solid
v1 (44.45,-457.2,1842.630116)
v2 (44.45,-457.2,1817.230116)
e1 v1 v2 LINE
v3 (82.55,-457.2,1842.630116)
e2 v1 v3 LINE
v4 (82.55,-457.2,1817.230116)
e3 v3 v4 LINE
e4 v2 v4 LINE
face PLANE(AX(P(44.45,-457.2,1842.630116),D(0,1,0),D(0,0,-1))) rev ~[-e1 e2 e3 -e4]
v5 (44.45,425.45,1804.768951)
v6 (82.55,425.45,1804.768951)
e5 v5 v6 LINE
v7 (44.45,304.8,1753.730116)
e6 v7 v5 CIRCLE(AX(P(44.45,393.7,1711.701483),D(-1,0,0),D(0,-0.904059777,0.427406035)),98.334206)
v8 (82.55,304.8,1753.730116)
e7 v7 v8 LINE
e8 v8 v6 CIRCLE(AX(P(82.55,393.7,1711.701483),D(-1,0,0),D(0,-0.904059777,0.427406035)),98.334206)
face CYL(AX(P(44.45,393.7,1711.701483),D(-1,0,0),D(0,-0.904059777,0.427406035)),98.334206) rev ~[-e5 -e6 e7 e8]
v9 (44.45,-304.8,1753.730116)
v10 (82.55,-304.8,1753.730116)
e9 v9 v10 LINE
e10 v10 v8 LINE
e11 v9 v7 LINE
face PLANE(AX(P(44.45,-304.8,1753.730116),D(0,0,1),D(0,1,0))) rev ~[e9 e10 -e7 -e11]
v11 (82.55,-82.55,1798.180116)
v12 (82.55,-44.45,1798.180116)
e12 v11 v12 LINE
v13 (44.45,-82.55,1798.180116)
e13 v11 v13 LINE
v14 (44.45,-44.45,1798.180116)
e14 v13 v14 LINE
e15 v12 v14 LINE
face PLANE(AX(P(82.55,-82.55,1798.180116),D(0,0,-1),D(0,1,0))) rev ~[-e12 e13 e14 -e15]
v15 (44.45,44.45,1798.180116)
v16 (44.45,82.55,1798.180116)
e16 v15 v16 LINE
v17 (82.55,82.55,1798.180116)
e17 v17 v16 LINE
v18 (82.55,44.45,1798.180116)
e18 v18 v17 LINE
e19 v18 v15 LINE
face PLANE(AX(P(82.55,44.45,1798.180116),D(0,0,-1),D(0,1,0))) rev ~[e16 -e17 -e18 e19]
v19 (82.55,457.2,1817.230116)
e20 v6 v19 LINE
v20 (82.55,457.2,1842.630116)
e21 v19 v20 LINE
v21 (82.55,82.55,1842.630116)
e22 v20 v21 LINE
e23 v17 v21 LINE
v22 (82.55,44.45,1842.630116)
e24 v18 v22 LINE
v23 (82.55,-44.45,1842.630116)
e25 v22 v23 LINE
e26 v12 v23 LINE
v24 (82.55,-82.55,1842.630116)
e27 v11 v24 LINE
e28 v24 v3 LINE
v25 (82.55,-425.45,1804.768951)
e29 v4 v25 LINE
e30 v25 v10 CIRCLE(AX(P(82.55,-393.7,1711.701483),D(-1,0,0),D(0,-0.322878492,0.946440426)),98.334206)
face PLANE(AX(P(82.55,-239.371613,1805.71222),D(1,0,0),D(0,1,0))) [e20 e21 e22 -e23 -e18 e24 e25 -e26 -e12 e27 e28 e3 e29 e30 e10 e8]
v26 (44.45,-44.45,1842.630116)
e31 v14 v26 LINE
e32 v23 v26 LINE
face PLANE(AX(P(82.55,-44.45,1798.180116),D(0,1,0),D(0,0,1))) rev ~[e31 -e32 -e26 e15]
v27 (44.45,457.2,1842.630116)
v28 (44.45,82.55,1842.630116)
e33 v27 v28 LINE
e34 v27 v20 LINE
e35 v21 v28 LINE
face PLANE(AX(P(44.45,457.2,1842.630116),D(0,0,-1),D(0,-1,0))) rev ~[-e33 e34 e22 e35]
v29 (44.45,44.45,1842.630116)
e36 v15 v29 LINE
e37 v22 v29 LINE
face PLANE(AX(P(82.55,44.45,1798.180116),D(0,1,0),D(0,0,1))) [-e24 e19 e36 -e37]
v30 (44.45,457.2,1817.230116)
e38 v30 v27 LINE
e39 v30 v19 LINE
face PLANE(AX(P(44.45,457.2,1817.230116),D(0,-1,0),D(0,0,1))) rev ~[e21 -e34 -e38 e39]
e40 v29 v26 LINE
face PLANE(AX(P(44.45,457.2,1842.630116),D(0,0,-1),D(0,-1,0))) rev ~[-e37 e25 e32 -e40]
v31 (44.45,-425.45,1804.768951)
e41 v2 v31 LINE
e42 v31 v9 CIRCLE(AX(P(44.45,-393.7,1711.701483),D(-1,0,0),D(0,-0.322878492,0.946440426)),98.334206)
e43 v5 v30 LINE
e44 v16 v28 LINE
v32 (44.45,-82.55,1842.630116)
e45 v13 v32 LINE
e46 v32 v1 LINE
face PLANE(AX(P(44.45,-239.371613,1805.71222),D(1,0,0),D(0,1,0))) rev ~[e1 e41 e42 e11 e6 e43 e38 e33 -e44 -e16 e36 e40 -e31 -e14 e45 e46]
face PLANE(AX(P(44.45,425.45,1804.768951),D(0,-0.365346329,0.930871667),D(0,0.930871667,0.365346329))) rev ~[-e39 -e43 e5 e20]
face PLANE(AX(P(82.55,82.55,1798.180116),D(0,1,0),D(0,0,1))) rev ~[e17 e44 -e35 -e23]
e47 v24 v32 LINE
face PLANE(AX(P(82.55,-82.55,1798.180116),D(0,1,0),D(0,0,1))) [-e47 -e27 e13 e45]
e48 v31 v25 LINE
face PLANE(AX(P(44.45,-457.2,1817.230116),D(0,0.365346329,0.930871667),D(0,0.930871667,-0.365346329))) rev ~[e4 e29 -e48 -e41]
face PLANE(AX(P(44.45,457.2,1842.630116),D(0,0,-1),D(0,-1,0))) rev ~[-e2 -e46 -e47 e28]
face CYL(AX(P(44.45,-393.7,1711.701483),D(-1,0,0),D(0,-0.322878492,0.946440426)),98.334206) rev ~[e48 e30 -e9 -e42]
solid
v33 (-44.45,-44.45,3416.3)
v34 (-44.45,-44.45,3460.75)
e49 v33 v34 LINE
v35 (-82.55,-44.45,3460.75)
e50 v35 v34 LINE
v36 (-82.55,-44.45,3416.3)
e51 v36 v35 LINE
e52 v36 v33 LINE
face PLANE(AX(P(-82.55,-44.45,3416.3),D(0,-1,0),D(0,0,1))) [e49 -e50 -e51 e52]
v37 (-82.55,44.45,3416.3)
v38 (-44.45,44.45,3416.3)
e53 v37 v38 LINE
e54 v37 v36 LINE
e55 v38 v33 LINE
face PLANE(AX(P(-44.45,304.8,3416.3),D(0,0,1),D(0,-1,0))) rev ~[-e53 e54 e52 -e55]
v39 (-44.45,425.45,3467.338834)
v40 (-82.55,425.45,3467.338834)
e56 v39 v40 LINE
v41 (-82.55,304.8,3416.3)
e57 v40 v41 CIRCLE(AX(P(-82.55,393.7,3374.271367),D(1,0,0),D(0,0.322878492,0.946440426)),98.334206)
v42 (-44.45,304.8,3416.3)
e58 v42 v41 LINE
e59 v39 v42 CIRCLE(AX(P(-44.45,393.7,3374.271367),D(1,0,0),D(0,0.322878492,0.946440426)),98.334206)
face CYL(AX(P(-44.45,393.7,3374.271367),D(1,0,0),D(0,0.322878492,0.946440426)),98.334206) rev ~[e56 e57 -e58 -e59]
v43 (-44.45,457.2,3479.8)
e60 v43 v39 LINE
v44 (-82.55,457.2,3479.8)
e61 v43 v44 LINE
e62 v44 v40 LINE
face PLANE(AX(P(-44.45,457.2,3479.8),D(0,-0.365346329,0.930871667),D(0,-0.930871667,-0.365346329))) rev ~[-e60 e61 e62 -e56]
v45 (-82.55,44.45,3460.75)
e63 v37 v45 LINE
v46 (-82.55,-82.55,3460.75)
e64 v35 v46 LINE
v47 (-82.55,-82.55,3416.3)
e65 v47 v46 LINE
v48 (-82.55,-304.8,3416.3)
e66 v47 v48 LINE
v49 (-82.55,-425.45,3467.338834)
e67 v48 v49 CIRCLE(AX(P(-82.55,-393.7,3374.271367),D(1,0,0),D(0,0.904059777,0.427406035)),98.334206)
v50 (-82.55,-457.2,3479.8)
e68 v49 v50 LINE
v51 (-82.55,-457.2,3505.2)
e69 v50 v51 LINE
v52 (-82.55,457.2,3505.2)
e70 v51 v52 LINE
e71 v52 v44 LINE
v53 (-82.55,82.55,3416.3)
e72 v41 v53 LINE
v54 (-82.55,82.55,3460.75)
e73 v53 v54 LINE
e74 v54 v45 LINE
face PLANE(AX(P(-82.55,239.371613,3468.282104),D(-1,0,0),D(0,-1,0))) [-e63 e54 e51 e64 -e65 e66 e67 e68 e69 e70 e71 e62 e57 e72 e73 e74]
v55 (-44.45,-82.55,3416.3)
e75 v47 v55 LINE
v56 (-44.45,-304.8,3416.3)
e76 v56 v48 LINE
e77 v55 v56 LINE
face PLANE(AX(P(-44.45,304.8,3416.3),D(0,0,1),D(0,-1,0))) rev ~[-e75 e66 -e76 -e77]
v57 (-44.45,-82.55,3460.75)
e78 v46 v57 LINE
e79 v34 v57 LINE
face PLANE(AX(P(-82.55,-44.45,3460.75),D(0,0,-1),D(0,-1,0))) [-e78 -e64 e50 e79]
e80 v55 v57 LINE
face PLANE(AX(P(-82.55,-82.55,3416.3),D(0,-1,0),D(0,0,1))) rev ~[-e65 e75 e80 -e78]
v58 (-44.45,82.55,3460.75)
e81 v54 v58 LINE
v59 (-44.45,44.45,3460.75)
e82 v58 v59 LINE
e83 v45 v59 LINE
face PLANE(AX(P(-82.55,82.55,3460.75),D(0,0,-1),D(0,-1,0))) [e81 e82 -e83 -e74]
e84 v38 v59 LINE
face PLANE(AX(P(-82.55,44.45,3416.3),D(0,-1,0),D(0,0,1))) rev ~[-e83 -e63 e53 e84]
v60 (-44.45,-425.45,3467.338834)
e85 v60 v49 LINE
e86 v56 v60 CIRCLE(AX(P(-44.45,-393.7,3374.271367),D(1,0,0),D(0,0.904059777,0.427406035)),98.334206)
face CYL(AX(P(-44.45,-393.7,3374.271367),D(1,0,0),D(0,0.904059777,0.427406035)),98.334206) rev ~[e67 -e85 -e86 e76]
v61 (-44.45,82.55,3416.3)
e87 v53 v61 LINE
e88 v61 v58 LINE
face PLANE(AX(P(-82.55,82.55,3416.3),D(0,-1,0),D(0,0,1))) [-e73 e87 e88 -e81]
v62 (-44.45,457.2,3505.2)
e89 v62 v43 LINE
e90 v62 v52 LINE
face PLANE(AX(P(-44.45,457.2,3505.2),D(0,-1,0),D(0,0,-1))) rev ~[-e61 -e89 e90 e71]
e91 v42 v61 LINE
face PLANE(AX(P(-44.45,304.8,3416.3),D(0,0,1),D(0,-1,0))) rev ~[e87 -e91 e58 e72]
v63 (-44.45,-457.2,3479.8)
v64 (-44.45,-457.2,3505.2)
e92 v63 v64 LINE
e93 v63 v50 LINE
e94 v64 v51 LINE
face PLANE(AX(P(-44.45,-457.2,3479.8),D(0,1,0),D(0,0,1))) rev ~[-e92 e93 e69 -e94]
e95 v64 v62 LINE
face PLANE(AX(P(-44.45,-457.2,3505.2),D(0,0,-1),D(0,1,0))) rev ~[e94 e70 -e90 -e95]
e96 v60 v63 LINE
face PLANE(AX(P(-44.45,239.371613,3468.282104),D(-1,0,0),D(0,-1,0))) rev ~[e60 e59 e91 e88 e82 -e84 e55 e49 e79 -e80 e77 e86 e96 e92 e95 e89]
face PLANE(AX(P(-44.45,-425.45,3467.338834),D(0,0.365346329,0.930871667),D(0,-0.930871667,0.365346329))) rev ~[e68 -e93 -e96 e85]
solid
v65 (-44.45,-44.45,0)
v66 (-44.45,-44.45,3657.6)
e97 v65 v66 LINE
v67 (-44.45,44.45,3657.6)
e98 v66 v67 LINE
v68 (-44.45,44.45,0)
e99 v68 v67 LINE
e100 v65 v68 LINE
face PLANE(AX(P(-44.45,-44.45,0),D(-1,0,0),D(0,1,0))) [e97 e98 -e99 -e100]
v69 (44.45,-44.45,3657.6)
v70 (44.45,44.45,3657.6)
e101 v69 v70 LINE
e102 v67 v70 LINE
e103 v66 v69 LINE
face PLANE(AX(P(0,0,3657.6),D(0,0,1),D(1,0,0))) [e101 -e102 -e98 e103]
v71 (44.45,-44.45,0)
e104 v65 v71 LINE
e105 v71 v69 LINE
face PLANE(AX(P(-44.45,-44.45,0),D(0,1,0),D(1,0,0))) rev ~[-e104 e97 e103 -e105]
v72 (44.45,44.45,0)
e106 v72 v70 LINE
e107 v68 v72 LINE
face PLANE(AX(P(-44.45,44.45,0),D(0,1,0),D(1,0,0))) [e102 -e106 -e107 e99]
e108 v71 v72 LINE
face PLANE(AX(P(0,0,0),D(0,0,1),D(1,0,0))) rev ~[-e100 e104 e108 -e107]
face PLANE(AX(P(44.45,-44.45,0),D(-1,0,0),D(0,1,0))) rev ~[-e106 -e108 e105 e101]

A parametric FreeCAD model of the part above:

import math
import FreeCAD as App
import Part
import Sketcher
Q = App.Units.Quantity


def add_polygon(sketch, points):
    """Adds a closed chain of lines whose ends are joined by coincident constraints."""
    first, n = sketch.GeometryCount, len(points)
    for a, b in zip(points, points[1:] + points[:1]):
        sketch.addGeometry(Part.LineSegment(App.Vector(*a, 0), App.Vector(*b, 0)), False)
    for i in range(n):
        sketch.addConstraint(Sketcher.Constraint("Coincident", first + i, 2, first + (i + 1) % n, 1))

doc = App.newDocument("Part")
body = doc.addObject("PartDesign::Body", "Body")

# Sketch on XY plane
sketch1 = body.newObject("Sketcher::SketchObject", "Sketch")
sketch1.AttachmentSupport = (doc.getObject("XY_Plane"), [""])
sketch1.MapMode = "FlatFace"
add_polygon(sketch1, [(-44, 44), (-44, -44), (44, -44), (44, 44)])  # lines 0-3
sketch1.addConstraint([
    Sketcher.Constraint("Vertical", 0),
    Sketcher.Constraint("Horizontal", 1),
    Sketcher.Constraint("Vertical", 2),
    Sketcher.Constraint("Horizontal", 3),
    Sketcher.Constraint("Symmetric", 0, 2, 2, 2, -1, 1),
    Sketcher.Constraint("Equal", 3, 0),
    Sketcher.Constraint("DistanceX", 1, 1, 1, 2, Q("3.5 in")),
])
pad1 = body.newObject("PartDesign::Pad", "Pad")
pad1.Profile = sketch1
pad1.Length = Q("144 in")
body2 = doc.addObject("PartDesign::Body", "Body001")

# Sketch on YZ plane
sketch2 = body2.newObject("Sketcher::SketchObject", "Sketch001")
sketch2.AttachmentSupport = (doc.getObject("YZ_Plane001"), [""])
sketch2.MapMode = "FlatFace"
sketch2.AttachmentOffset = App.Placement(App.Vector(0, 0, -1.75 * 25.4), App.Rotation())
sketch2.addGeometry([
    Part.LineSegment(App.Vector(457, 3505, 0), App.Vector(457, 3480, 0)),  # 0
    Part.LineSegment(App.Vector(457, 3480, 0), App.Vector(425, 3467, 0)),  # 1
    Part.ArcOfCircle(Part.Circle(App.Vector(394, 3374, 0), App.Vector(0, 0, 1), 98), math.radians(71), math.radians(155)),  # 2
    Part.LineSegment(App.Vector(305, 3416, 0), App.Vector(-305, 3416, 0)),  # 3
    Part.ArcOfCircle(Part.Circle(App.Vector(-394, 3374, 0), App.Vector(0, 0, 1), 98), math.radians(25), math.radians(109)),  # 4
    Part.LineSegment(App.Vector(-425, 3467, 0), App.Vector(-457, 3480, 0)),  # 5
    Part.LineSegment(App.Vector(-457, 3480, 0), App.Vector(-457, 3505, 0)),  # 6
    Part.LineSegment(App.Vector(-457, 3505, 0), App.Vector(457, 3505, 0)),  # 7
], False)
sketch2.addConstraint([
    Sketcher.Constraint("Coincident", 0, 2, 1, 1),
    Sketcher.Constraint("Coincident", 1, 2, 2, 1),
    Sketcher.Constraint("Coincident", 2, 2, 3, 1),
    Sketcher.Constraint("Coincident", 3, 2, 4, 1),
    Sketcher.Constraint("Coincident", 4, 2, 5, 1),
    Sketcher.Constraint("Coincident", 5, 2, 6, 1),
    Sketcher.Constraint("Coincident", 6, 2, 7, 1),
    Sketcher.Constraint("Coincident", 7, 2, 0, 1),
    Sketcher.Constraint("Vertical", 0),
    Sketcher.Constraint("Horizontal", 3),
    Sketcher.Constraint("Vertical", 6),
    Sketcher.Constraint("Horizontal", 7),
    Sketcher.Constraint("Equal", 2, 4),
    Sketcher.Constraint("Symmetric", 2, 3, 4, 3, -2),
    Sketcher.Constraint("Symmetric", 0, 2, 5, 2, -2),
    Sketcher.Constraint("Horizontal", 1, 2, 4, 2),
    Sketcher.Constraint("DistanceX", 3, 2, 3, 1, Q("24 in")),
    Sketcher.Constraint("DistanceX", 7, 1, 7, 2, Q("36 in")),
    Sketcher.Constraint("DistanceY", 0, 2, 0, 1, Q("1 in")),
    Sketcher.Constraint("DistanceY", -1, 1, 0, 2, Q("137 in")),
    Sketcher.Constraint("DistanceX", 4, 3, 2, 3, Q("31 in")),
    Sketcher.Constraint("DistanceY", -1, 1, 2, 2, Q("134.5 in")),
    Sketcher.Constraint("DistanceX", 4, 2, 1, 2, Q("33.5 in")),
    Sketcher.Constraint("Radius", 2, Q("98.334206 mm")),
])
pad2 = body2.newObject("PartDesign::Pad", "Pad001")
pad2.Profile = sketch2
pad2.Length = Q("1.5 in")
pad2.Reversed = True

# Sketch on YZ plane
sketch3 = body2.newObject("Sketcher::SketchObject", "Sketch002")
sketch3.AttachmentSupport = (doc.getObject("YZ_Plane001"), [""])
sketch3.MapMode = "FlatFace"
sketch3.AttachmentOffset = App.Placement(App.Vector(0, 0, -3.25 * 25.4), App.Rotation())
add_polygon(sketch3, [(-44, 3461), (-44, 3416), (-83, 3416), (-83, 3461)])  # lines 0-3
sketch3.addConstraint([
    Sketcher.Constraint("Vertical", 0),
    Sketcher.Constraint("Horizontal", 1),
    Sketcher.Constraint("Vertical", 2),
    Sketcher.Constraint("Horizontal", 3),
    Sketcher.Constraint("DistanceX", 1, 2, 1, 1, Q("1.5 in")),
    Sketcher.Constraint("DistanceY", 0, 2, 0, 1, Q("1.75 in")),
    Sketcher.Constraint("DistanceY", -1, 1, 0, 2, Q("134.5 in")),
    Sketcher.Constraint("DistanceX", 0, 2, -1, 1, Q("1.75 in")),
])
pocket1 = body2.newObject("PartDesign::Pocket", "Pocket")
pocket1.Profile = sketch3
pocket1.Length = Q("10 in")
pocket1.Reversed = True

# Sketch on YZ plane
sketch4 = body2.newObject("Sketcher::SketchObject", "Sketch003")
sketch4.AttachmentSupport = (doc.getObject("YZ_Plane001"), [""])
sketch4.MapMode = "FlatFace"
sketch4.AttachmentOffset = App.Placement(App.Vector(0, 0, -3.25 * 25.4), App.Rotation())
add_polygon(sketch4, [(83, 3461), (83, 3416), (44, 3416), (44, 3461)])  # lines 0-3
sketch4.addConstraint([
    Sketcher.Constraint("Vertical", 0),
    Sketcher.Constraint("Horizontal", 1),
    Sketcher.Constraint("Vertical", 2),
    Sketcher.Constraint("Horizontal", 3),
    Sketcher.Constraint("DistanceX", 1, 2, 1, 1, Q("1.5 in")),
    Sketcher.Constraint("DistanceY", 0, 2, 0, 1, Q("1.75 in")),
    Sketcher.Constraint("DistanceY", -1, 1, 0, 2, Q("134.5 in")),
    Sketcher.Constraint("DistanceX", -1, 1, 0, 2, Q("3.25 in")),
])
pocket2 = body2.newObject("PartDesign::Pocket", "Pocket001")
pocket2.Profile = sketch4
pocket2.Length = Q("10 in")
pocket2.Reversed = True
body3 = doc.addObject("PartDesign::Body", "Body002")

# Sketch on YZ plane
sketch5 = body3.newObject("Sketcher::SketchObject", "Sketch004")
sketch5.AttachmentSupport = (doc.getObject("YZ_Plane002"), [""])
sketch5.MapMode = "FlatFace"
sketch5.AttachmentOffset = App.Placement(App.Vector(0, 0, 1.75 * 25.4), App.Rotation())
sketch5.addGeometry([
    Part.LineSegment(App.Vector(-457, 1843, 0), App.Vector(-457, 1817, 0)),  # 0
    Part.LineSegment(App.Vector(-457, 1817, 0), App.Vector(-425, 1805, 0)),  # 1
    Part.ArcOfCircle(Part.Circle(App.Vector(-394, 1712, 0), App.Vector(0, 0, 1), 98), math.radians(25), math.radians(109)),  # 2
    Part.LineSegment(App.Vector(-305, 1754, 0), App.Vector(305, 1754, 0)),  # 3
    Part.ArcOfCircle(Part.Circle(App.Vector(394, 1712, 0), App.Vector(0, 0, 1), 98), math.radians(71), math.radians(155)),  # 4
    Part.LineSegment(App.Vector(425, 1805, 0), App.Vector(457, 1817, 0)),  # 5
    Part.LineSegment(App.Vector(457, 1817, 0), App.Vector(457, 1843, 0)),  # 6
    Part.LineSegment(App.Vector(457, 1843, 0), App.Vector(-457, 1843, 0)),  # 7
], False)
sketch5.addConstraint([
    Sketcher.Constraint("Coincident", 0, 2, 1, 1),
    Sketcher.Constraint("Coincident", 1, 2, 2, 2),
    Sketcher.Constraint("Coincident", 2, 1, 3, 1),
    Sketcher.Constraint("Coincident", 3, 2, 4, 2),
    Sketcher.Constraint("Coincident", 4, 1, 5, 1),
    Sketcher.Constraint("Coincident", 5, 2, 6, 1),
    Sketcher.Constraint("Coincident", 6, 2, 7, 1),
    Sketcher.Constraint("Coincident", 7, 2, 0, 1),
    Sketcher.Constraint("Vertical", 0),
    Sketcher.Constraint("Horizontal", 3),
    Sketcher.Constraint("Vertical", 6),
    Sketcher.Constraint("Horizontal", 7),
    Sketcher.Constraint("Equal", 2, 4),
    Sketcher.Constraint("Symmetric", 2, 3, 4, 3, -2),
    Sketcher.Constraint("Symmetric", 0, 2, 5, 2, -2),
    Sketcher.Constraint("Horizontal", 1, 2, 4, 1),
    Sketcher.Constraint("DistanceX", 3, 1, 3, 2, Q("24 in")),
    Sketcher.Constraint("DistanceX", 7, 2, 7, 1, Q("36 in")),
    Sketcher.Constraint("DistanceY", 0, 2, 0, 1, Q("1 in")),
    Sketcher.Constraint("DistanceX", 2, 3, 4, 3, Q("31 in")),
    Sketcher.Constraint("DistanceY", 2, 1, 0, 2, Q("2.5 in")),
    Sketcher.Constraint("DistanceX", 1, 2, 4, 1, Q("33.5 in")),
    Sketcher.Constraint("Radius", 2, Q("98.334206 mm")),
    Sketcher.Constraint("DistanceY", -1, 1, 1, 2, Q("1804.768951 mm")),
])
pad3 = body3.newObject("PartDesign::Pad", "Pad002")
pad3.Profile = sketch5
pad3.Length = Q("1.5 in")

# Sketch on YZ plane
sketch6 = body3.newObject("Sketcher::SketchObject", "Sketch005")
sketch6.AttachmentSupport = (doc.getObject("YZ_Plane002"), [""])
sketch6.MapMode = "FlatFace"
sketch6.AttachmentOffset = App.Placement(App.Vector(0, 0, 3.25 * 25.4), App.Rotation())
add_polygon(sketch6, [(-83, 1843), (-83, 1798), (-44, 1798), (-44, 1843)])  # lines 0-3
add_polygon(sketch6, [(44, 1843), (44, 1798), (83, 1798), (83, 1843)])  # lines 4-7
sketch6.addConstraint([
    Sketcher.Constraint("Vertical", 0),
    Sketcher.Constraint("Horizontal", 1),
    Sketcher.Constraint("Vertical", 2),
    Sketcher.Constraint("Horizontal", 3),
    Sketcher.Constraint("Vertical", 4),
    Sketcher.Constraint("Horizontal", 5),
    Sketcher.Constraint("Vertical", 6),
    Sketcher.Constraint("Horizontal", 7),
    Sketcher.Constraint("Symmetric", 1, 2, 4, 2, -2),
    Sketcher.Constraint("Symmetric", 3, 2, 6, 2, -2),
    Sketcher.Constraint("DistanceX", 1, 1, 1, 2, Q("1.5 in")),
    Sketcher.Constraint("DistanceX", 0, 2, 4, 2, Q("5 in")),
    Sketcher.Constraint("DistanceY", 0, 2, 0, 1, Q("1.75 in")),
    Sketcher.Constraint("DistanceY", -1, 1, 0, 2, Q("1798.180116 mm")),
])
pocket3 = body3.newObject("PartDesign::Pocket", "Pocket002")
pocket3.Profile = sketch6
pocket3.Length = Q("10 in")

doc.recompute()
